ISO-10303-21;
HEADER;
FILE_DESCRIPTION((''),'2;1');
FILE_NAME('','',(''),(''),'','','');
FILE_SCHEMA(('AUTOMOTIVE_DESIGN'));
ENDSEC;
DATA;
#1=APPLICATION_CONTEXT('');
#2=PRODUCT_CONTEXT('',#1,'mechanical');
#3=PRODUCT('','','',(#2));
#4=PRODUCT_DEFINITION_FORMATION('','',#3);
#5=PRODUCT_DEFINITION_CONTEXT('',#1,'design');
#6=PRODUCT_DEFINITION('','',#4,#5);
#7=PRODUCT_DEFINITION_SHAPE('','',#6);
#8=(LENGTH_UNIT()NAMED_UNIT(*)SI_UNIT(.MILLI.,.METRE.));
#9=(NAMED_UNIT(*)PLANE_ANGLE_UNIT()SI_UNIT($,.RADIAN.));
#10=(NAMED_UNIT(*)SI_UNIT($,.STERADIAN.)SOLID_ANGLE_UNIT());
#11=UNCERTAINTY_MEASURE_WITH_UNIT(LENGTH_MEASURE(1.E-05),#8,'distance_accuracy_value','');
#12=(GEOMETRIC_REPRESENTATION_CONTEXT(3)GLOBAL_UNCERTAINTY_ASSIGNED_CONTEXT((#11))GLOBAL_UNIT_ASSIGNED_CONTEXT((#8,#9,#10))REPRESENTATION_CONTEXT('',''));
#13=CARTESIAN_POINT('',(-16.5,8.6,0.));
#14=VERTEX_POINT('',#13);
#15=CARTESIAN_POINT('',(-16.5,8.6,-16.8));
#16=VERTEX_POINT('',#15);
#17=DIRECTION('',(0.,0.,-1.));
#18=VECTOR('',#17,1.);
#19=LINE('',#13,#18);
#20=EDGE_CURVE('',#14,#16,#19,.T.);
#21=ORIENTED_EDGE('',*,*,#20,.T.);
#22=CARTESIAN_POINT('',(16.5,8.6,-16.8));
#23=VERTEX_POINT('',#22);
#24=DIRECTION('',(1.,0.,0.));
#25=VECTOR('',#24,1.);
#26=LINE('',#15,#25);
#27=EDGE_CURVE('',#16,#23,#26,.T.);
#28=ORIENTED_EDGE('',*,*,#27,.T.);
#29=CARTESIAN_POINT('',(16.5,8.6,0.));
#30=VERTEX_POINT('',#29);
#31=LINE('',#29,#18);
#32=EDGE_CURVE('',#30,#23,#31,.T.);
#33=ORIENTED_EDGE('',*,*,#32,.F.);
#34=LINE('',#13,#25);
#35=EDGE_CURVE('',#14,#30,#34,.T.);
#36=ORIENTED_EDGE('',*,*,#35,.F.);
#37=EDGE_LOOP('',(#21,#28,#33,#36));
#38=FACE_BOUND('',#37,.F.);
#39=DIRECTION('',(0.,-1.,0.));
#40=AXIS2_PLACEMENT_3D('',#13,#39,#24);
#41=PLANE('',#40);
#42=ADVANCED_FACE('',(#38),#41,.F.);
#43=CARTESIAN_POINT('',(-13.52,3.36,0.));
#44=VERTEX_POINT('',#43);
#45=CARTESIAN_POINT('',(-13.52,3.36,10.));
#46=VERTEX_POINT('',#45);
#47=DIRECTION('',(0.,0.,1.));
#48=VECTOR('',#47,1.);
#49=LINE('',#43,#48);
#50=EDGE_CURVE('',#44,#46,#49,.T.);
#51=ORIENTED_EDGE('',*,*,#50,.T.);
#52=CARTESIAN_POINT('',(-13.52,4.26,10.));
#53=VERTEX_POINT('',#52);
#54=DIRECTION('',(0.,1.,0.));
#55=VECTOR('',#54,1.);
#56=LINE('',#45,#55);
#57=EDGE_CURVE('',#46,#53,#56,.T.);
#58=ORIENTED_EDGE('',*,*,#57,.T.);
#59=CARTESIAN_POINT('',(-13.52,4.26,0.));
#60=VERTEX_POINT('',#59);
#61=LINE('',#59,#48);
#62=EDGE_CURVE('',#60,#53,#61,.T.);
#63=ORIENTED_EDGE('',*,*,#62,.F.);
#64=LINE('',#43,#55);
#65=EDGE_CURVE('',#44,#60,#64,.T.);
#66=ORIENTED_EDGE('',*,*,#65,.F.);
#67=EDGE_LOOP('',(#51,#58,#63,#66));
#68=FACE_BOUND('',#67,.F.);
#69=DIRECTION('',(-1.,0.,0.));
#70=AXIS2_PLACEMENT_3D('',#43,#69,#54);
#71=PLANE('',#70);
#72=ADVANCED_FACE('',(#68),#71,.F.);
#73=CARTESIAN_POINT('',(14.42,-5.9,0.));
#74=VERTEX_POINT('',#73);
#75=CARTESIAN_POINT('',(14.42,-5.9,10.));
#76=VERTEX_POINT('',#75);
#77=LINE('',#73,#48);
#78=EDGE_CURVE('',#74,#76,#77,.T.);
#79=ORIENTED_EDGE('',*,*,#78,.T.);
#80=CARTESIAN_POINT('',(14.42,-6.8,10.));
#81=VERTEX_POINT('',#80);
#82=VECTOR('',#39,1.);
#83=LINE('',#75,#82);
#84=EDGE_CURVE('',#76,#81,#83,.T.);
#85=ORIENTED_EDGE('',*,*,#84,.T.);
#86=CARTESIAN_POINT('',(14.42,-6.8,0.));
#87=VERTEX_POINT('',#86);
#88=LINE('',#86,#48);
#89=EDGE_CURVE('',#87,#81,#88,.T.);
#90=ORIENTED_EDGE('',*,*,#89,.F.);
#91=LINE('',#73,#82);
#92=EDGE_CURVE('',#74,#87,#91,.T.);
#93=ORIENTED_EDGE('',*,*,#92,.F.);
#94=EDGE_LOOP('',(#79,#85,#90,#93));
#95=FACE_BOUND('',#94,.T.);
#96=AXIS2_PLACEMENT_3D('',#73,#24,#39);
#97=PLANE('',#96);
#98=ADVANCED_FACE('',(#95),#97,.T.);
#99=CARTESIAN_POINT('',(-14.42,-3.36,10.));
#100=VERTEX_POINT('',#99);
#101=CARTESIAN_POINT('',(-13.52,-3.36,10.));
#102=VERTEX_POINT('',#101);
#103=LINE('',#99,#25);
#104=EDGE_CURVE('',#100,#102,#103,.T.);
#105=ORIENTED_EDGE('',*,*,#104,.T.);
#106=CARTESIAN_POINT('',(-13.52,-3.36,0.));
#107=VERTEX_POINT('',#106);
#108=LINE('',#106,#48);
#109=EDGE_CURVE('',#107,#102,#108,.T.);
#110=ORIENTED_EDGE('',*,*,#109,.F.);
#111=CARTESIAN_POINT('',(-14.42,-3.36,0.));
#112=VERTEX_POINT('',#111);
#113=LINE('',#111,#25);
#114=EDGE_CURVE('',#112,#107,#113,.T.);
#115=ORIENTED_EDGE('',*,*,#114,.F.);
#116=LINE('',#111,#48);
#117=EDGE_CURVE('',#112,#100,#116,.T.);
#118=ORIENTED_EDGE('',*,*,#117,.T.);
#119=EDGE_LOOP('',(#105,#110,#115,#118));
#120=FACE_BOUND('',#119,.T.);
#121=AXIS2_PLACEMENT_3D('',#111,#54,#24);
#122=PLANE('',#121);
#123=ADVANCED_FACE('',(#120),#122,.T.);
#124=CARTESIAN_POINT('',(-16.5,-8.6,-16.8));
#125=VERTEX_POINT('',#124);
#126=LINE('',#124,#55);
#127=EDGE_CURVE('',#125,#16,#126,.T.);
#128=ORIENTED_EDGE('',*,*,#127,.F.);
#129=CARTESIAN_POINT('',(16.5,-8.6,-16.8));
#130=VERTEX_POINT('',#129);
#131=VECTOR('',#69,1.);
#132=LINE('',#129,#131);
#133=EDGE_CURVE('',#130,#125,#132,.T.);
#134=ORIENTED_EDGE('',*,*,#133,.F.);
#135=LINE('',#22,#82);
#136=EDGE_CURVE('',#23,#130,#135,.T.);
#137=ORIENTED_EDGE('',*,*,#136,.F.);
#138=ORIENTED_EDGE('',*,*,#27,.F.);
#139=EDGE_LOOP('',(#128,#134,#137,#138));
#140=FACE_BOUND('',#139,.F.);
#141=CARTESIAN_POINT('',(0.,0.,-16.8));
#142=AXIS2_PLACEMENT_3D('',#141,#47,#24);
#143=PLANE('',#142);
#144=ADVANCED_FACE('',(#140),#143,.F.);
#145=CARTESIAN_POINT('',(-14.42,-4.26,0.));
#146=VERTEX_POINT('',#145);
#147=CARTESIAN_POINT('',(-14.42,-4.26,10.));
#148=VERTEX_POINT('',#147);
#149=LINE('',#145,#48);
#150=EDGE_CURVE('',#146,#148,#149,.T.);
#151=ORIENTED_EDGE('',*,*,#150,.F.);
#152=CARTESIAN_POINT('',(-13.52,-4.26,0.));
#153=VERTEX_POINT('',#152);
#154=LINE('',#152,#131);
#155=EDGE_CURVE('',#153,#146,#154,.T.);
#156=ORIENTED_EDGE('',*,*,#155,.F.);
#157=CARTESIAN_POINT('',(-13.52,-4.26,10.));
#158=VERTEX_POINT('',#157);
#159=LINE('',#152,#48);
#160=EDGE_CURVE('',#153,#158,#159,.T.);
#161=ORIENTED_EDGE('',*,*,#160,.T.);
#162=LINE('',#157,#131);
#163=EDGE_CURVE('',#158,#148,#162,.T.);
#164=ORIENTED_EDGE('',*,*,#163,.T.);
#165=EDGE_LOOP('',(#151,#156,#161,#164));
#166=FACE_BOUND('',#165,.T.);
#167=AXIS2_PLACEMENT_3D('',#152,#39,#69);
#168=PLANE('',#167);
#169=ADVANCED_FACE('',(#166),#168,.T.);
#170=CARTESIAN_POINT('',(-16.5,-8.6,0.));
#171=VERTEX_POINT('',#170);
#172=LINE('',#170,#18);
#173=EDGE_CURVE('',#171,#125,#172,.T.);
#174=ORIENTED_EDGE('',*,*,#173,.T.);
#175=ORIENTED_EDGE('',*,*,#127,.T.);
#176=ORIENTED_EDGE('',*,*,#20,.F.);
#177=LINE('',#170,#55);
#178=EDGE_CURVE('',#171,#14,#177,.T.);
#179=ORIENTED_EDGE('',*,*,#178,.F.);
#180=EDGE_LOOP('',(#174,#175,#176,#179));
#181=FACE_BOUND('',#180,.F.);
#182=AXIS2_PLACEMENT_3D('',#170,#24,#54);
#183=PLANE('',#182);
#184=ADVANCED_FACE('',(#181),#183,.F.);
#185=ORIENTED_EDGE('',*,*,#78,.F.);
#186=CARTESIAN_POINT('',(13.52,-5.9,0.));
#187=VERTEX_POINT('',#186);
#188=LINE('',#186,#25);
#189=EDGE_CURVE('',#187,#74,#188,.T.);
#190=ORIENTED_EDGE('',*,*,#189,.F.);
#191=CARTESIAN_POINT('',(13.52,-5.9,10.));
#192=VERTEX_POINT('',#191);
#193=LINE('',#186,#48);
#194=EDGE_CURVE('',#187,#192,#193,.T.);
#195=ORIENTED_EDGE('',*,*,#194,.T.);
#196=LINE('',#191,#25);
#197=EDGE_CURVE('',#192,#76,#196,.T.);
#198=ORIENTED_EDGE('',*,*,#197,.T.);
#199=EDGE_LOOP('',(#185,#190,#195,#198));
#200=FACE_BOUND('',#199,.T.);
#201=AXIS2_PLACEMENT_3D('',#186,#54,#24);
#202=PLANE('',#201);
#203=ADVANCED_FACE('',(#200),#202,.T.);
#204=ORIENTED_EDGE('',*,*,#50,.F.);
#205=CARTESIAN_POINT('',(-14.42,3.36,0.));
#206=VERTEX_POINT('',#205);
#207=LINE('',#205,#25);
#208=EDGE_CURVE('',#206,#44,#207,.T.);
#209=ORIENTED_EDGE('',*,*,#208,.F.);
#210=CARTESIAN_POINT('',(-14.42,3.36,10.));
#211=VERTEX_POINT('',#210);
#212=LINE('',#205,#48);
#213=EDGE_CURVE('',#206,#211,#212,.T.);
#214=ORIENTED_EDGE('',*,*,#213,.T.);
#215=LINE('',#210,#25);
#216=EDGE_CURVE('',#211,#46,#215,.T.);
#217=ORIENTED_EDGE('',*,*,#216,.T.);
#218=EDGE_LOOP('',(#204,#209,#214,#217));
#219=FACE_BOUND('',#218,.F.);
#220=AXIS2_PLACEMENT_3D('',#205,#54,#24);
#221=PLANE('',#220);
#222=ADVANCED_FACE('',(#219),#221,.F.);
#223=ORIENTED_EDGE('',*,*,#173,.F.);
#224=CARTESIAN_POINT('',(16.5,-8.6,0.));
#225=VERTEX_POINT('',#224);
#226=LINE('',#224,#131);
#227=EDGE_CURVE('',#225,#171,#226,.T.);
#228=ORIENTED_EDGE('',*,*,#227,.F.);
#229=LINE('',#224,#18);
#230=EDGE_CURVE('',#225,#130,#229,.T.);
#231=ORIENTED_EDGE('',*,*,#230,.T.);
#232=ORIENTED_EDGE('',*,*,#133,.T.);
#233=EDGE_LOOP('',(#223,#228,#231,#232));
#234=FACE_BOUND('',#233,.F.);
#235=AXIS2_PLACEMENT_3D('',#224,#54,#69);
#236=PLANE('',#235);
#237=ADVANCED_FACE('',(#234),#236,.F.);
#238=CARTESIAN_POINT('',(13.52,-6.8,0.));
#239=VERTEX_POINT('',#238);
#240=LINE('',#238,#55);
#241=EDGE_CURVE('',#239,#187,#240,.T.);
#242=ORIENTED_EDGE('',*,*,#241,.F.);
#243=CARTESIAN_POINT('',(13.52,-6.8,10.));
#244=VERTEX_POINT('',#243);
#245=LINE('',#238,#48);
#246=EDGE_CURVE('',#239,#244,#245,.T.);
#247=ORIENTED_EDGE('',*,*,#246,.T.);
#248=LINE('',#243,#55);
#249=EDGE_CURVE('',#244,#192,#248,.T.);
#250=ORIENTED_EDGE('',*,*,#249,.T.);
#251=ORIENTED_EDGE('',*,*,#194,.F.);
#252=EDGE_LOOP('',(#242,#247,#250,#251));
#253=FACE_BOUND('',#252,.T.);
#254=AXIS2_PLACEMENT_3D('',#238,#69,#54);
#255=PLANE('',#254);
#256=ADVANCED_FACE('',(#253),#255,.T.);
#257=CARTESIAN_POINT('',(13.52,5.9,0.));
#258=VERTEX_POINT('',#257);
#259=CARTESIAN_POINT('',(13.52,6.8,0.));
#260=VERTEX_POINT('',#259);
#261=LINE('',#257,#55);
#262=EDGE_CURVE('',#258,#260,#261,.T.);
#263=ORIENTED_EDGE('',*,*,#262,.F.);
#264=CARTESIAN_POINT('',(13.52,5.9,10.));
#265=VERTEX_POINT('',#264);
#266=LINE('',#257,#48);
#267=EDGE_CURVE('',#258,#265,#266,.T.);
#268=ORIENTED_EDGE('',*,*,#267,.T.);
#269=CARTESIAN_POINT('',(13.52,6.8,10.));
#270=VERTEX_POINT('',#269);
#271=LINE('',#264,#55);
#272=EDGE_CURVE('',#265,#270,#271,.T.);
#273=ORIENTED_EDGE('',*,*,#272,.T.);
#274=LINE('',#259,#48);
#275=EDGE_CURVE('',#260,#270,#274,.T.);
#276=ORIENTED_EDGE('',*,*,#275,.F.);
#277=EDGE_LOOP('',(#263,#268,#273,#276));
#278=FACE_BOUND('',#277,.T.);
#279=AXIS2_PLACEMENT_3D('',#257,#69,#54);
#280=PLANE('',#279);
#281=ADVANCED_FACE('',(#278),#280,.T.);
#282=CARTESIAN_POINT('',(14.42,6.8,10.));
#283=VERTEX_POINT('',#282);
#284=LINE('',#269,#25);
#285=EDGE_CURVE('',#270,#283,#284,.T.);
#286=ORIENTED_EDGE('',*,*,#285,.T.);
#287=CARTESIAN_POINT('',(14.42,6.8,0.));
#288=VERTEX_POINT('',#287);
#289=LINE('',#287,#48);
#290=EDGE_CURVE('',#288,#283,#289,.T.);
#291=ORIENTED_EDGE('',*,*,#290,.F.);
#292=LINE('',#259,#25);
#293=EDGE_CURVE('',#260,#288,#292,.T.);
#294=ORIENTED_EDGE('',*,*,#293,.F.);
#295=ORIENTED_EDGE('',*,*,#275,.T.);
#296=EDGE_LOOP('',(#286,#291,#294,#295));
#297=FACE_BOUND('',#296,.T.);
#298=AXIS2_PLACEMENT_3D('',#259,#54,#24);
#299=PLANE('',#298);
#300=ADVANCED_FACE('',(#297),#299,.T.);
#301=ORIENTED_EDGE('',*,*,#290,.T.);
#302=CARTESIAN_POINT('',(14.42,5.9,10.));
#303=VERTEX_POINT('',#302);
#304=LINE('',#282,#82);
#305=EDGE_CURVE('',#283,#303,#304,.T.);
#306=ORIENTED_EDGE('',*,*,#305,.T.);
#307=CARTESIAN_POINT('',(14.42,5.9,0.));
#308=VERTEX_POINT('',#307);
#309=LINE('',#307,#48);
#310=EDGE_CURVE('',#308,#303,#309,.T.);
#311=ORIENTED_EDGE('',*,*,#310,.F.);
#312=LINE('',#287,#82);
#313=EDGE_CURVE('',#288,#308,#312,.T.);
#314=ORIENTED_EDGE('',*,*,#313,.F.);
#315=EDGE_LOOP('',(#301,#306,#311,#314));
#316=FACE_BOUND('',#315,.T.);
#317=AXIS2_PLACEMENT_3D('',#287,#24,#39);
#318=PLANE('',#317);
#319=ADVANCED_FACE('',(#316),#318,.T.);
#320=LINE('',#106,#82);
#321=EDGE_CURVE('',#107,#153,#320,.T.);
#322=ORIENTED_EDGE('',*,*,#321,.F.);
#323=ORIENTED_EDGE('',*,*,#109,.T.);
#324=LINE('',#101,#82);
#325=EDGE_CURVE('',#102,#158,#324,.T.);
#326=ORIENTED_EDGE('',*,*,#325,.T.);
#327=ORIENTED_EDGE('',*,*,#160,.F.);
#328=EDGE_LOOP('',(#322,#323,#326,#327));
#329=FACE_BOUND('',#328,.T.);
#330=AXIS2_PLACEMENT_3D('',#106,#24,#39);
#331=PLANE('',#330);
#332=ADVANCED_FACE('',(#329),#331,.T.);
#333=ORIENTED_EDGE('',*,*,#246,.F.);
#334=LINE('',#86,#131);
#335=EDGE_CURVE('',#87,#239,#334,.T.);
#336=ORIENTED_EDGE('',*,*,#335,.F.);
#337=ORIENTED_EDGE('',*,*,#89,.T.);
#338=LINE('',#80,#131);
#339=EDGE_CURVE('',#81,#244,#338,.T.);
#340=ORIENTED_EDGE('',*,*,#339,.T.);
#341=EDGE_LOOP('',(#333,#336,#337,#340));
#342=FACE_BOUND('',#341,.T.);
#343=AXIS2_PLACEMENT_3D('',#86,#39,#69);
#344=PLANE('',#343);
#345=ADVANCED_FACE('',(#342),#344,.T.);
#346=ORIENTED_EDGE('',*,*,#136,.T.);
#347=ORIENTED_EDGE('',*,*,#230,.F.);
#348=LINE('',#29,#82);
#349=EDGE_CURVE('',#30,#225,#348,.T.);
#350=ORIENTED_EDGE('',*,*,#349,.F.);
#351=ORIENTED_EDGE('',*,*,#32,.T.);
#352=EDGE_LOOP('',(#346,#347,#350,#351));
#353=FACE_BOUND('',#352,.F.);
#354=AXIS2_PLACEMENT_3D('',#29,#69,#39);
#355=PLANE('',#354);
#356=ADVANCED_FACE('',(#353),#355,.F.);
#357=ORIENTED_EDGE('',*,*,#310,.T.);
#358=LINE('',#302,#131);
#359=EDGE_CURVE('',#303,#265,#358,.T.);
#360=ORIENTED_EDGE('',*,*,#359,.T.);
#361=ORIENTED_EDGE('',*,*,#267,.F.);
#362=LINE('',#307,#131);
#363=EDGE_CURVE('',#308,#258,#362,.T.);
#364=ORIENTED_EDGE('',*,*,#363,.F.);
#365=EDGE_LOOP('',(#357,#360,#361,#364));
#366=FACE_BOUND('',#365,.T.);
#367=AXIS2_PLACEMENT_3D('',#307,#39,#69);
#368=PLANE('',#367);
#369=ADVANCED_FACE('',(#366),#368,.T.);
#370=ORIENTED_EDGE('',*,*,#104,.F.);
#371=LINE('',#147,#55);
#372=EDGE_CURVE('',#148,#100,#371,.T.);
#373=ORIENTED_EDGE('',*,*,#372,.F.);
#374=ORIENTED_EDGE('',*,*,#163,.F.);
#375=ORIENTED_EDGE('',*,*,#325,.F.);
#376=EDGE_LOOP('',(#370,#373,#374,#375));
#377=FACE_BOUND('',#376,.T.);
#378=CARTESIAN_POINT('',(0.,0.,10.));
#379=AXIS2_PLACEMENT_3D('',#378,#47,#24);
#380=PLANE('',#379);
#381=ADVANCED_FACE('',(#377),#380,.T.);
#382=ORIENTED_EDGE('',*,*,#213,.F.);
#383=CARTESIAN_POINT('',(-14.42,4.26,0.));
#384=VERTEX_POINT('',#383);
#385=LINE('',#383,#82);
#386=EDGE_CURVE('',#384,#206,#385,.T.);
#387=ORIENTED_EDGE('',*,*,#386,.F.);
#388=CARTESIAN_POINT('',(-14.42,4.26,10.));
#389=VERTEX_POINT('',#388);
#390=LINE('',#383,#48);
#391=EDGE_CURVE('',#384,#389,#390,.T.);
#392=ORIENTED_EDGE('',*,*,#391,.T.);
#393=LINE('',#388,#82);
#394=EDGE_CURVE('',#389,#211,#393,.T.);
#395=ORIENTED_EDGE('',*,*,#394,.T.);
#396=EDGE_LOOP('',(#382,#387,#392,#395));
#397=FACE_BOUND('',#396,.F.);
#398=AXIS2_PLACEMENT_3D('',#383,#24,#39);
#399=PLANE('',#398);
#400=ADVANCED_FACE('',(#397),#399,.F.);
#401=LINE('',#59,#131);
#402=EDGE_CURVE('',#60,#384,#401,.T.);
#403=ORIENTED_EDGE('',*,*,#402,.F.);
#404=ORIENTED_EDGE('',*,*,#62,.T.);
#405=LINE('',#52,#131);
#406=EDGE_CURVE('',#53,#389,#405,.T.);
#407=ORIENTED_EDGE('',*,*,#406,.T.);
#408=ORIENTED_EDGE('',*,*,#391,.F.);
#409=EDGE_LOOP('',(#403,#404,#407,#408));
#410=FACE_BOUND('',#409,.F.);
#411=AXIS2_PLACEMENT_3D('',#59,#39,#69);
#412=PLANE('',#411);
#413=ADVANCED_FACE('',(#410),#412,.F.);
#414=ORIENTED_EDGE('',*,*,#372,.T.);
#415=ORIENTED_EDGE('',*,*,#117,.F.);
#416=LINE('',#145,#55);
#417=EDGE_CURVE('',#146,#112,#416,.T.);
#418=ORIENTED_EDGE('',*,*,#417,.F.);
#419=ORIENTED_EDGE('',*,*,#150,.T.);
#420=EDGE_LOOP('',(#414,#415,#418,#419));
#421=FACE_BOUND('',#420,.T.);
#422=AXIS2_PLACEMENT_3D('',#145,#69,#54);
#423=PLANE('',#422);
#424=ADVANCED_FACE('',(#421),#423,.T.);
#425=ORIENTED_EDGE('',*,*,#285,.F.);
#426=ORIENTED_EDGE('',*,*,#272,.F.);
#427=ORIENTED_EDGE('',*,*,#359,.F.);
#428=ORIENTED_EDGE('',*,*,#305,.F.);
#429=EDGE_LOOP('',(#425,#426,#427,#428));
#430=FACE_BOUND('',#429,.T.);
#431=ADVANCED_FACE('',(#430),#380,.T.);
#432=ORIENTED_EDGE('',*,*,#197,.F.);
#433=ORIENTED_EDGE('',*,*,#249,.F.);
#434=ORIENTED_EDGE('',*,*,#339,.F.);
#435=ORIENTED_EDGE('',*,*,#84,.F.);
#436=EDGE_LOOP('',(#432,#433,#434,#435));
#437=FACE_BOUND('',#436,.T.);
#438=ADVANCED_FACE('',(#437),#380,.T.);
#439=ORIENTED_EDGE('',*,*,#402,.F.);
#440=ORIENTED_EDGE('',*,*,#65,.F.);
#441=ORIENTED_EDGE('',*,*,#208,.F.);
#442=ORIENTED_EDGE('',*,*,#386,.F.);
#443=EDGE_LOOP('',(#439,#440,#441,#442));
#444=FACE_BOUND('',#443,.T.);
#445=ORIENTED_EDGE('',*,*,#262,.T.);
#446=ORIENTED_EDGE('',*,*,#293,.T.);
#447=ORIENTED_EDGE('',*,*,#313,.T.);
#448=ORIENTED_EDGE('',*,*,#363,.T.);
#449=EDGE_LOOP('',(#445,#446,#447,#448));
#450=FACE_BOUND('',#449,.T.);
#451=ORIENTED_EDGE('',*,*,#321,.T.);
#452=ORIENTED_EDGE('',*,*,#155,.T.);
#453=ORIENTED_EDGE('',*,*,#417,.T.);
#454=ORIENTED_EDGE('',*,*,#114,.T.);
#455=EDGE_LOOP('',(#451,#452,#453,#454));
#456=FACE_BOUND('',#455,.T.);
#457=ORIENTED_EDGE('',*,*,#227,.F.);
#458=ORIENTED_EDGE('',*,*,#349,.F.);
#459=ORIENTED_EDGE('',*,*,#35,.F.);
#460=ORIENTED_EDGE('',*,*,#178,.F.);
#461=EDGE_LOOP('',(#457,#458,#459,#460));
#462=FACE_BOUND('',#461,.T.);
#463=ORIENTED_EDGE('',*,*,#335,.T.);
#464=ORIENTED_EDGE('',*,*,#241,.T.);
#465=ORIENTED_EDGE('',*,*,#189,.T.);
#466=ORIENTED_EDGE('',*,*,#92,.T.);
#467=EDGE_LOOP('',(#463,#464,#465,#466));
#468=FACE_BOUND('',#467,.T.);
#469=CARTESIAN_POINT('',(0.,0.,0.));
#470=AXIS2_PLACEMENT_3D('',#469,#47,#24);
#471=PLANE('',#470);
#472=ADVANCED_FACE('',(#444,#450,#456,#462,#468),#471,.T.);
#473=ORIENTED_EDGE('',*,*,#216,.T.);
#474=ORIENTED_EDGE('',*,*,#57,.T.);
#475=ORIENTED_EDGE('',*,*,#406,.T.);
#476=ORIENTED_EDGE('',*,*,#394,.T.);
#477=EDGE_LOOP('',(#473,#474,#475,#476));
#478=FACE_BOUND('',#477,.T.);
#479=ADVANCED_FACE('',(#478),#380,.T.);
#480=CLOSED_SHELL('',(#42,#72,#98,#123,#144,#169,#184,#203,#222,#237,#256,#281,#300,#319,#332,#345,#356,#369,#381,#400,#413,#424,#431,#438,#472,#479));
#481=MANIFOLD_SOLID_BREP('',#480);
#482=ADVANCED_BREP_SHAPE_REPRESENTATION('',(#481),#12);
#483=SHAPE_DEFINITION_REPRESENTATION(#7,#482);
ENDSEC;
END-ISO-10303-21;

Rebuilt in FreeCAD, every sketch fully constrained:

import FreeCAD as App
import Part
import Sketcher

V = App.Vector


def add_polygon(sketch, points):
    """Adds a closed chain of lines whose ends are joined by coincident constraints."""
    first, n = sketch.GeometryCount, len(points)
    for a, b in zip(points, points[1:] + points[:1]):
        sketch.addGeometry(Part.LineSegment(App.Vector(*a, 0), App.Vector(*b, 0)), False)
    for i in range(n):
        sketch.addConstraint(Sketcher.Constraint("Coincident", first + i, 2, first + (i + 1) % n, 1))

doc = App.newDocument("Part")
body = doc.addObject("PartDesign::Body", "Body")

# Sketch on XY plane
sketch1 = body.newObject("Sketcher::SketchObject", "Sketch")
sketch1.AttachmentSupport = (doc.getObject("XY_Plane"), [""])
sketch1.MapMode = "FlatFace"
add_polygon(sketch1, [(16, 9), (-16, 9), (-16, -9), (16, -9)])  # lines 0-3
sketch1.addConstraint([
    Sketcher.Constraint("Horizontal", 0),
    Sketcher.Constraint("Vertical", 1),
    Sketcher.Constraint("Horizontal", 2),
    Sketcher.Constraint("Vertical", 3),
    Sketcher.Constraint("Symmetric", 0, 2, 2, 2, -1, 1),
    Sketcher.Constraint("DistanceX", 0, 2, 0, 1, 33.0),
    Sketcher.Constraint("DistanceY", 1, 2, 1, 1, 17.2),
])
pad1 = body.newObject("PartDesign::Pad", "Pad")
pad1.Profile = sketch1
pad1.Length = 16.8
pad1.Reversed = True

# Sketch on XY plane
sketch2 = body.newObject("Sketcher::SketchObject", "Sketch001")
sketch2.AttachmentSupport = (doc.getObject("XY_Plane"), [""])
sketch2.MapMode = "FlatFace"
add_polygon(sketch2, [(14.4, 6.8), (13.5, 6.8), (13.5, 5.9), (14.4, 5.9)])  # lines 0-3
add_polygon(sketch2, [(14.4, -5.9), (13.5, -5.9), (13.5, -6.8), (14.4, -6.8)])  # lines 4-7
add_polygon(sketch2, [(-14.4, 4.3), (-14.4, 3.4), (-13.5, 3.4), (-13.5, 4.3)])  # lines 8-11
add_polygon(sketch2, [(-13.5, -3.4), (-14.4, -3.4), (-14.4, -4.3), (-13.5, -4.3)])  # lines 12-15
sketch2.addConstraint([
    Sketcher.Constraint("Horizontal", 0),
    Sketcher.Constraint("Vertical", 1),
    Sketcher.Constraint("Horizontal", 2),
    Sketcher.Constraint("Vertical", 3),
    Sketcher.Constraint("Horizontal", 4),
    Sketcher.Constraint("Vertical", 5),
    Sketcher.Constraint("Horizontal", 6),
    Sketcher.Constraint("Vertical", 7),
    Sketcher.Constraint("Vertical", 8),
    Sketcher.Constraint("Horizontal", 9),
    Sketcher.Constraint("Vertical", 10),
    Sketcher.Constraint("Horizontal", 11),
    Sketcher.Constraint("Horizontal", 12),
    Sketcher.Constraint("Vertical", 13),
    Sketcher.Constraint("Horizontal", 14),
    Sketcher.Constraint("Vertical", 15),
    Sketcher.Constraint("Symmetric", 1, 2, 4, 2, -1),
    Sketcher.Constraint("Symmetric", 3, 2, 6, 2, -1),
    Sketcher.Constraint("Symmetric", 8, 2, 12, 2, -1),
    Sketcher.Constraint("Symmetric", 10, 2, 14, 2, -1),
    Sketcher.Constraint("Equal", 6, 9),
    Sketcher.Constraint("Equal", 14, 1),
    Sketcher.Constraint("Equal", 7, 8),
    Sketcher.Constraint("DistanceX", 0, 2, 0, 1, 0.9),
    Sketcher.Constraint("DistanceY", 4, 2, 0, 2, 12.7),
    Sketcher.Constraint("DistanceX", 8, 2, 1, 2, 27.94),
    Sketcher.Constraint("DistanceY", 12, 2, 11, 2, 7.62),
    Sketcher.Constraint("DistanceX", -1, 1, 0, 2, 13.52),
])
pad2 = body.newObject("PartDesign::Pad", "Pad001")
pad2.Profile = sketch2
pad2.Length = 10

doc.recompute()
